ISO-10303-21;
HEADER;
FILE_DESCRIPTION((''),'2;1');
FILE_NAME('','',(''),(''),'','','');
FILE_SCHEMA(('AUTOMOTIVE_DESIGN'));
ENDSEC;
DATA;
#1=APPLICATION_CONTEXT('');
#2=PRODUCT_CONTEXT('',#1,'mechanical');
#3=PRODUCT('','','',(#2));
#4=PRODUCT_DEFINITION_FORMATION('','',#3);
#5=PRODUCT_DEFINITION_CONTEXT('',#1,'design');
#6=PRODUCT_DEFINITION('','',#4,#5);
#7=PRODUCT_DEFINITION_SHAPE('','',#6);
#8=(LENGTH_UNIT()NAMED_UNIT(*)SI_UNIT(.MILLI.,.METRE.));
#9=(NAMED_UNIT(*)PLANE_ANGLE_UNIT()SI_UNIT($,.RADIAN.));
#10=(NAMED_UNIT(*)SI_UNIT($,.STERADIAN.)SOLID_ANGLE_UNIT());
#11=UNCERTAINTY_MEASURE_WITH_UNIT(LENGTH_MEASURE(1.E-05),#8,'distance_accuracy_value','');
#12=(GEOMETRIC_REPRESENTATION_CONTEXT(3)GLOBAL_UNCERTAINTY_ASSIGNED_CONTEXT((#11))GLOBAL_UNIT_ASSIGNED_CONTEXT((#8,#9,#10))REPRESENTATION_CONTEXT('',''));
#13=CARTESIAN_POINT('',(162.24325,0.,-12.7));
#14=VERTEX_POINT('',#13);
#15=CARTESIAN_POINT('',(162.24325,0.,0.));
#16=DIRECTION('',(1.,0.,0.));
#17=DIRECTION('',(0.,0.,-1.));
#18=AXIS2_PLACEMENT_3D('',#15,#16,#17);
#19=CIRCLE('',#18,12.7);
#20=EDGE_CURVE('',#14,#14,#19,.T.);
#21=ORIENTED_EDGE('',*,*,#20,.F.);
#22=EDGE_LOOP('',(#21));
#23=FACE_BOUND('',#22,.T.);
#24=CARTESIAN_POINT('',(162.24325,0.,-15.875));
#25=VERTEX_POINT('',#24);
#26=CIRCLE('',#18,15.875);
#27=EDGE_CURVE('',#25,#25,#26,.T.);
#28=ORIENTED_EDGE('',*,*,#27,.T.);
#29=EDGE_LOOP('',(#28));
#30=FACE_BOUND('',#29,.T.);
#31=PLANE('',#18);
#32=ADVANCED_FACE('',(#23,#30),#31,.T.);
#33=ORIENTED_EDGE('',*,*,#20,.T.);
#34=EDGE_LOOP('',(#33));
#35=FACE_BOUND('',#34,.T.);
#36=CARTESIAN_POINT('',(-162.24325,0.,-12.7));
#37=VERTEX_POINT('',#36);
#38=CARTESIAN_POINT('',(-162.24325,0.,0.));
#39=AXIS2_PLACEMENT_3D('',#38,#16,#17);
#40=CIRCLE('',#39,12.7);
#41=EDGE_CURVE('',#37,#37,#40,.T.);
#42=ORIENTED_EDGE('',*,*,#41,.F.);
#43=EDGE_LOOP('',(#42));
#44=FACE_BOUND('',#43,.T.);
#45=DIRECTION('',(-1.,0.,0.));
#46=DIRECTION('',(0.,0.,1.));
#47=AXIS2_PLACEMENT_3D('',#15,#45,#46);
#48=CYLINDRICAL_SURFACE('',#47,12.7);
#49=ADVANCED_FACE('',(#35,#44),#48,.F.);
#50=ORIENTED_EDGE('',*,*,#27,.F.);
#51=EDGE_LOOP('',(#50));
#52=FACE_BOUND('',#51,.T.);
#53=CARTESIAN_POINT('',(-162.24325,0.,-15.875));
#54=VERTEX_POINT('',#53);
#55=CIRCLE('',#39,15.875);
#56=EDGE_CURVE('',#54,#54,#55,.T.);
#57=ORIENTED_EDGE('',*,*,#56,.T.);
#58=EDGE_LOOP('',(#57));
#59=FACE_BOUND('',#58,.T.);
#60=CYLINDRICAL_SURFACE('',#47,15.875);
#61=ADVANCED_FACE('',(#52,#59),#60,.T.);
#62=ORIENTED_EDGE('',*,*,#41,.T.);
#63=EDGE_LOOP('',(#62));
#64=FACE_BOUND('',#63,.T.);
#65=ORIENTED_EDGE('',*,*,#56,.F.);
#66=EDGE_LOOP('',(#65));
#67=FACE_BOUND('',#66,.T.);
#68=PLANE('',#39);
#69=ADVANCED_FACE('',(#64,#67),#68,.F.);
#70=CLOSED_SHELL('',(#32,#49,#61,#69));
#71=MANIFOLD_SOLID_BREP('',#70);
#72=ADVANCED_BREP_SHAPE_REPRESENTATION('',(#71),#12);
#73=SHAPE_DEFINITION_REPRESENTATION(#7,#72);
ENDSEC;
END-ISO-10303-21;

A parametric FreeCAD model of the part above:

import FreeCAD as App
import Part
import Sketcher

V = App.Vector
Q = App.Units.Quantity

doc = App.newDocument("Part")
params = doc.addObject("Spreadsheet::Sheet", "Params")
for row, (alias, value) in enumerate([
    ("sketch1_diameter", "1 in"),
    ("sketch1_diameter2", "1.25 in"),
    ("pad1_length", "324.4865 mm"),
], start=1):
    params.set(f"A{row}", alias)
    params.set(f"B{row}", "=" + value)
    params.setAlias(f"B{row}", alias)

body = doc.addObject("PartDesign::Body", "Body")

# Sketch on YZ plane
sketch1 = body.newObject("Sketcher::SketchObject", "Sketch")
sketch1.AttachmentSupport = (doc.getObject("YZ_Plane"), [""])
sketch1.MapMode = "FlatFace"
sketch1.addGeometry([
    Part.Circle(V(0, 0, 0), V(0, 0, 1), 16),
    Part.Circle(V(0, 0, 0), V(0, 0, 1), 13),
], False)
sketch1.addConstraint([
    Sketcher.Constraint("Coincident", 0, 3, -1, 1),
    Sketcher.Constraint("Coincident", 1, 3, -1, 1),
    Sketcher.Constraint("Diameter", 1, Q("1 in")),
    Sketcher.Constraint("Diameter", 0, Q("1.25 in")),
])
sketch1.setExpression("Constraints[2]", "Params.sketch1_diameter")
sketch1.setExpression("Constraints[3]", "Params.sketch1_diameter2")
pad1 = body.newObject("PartDesign::Pad", "Pad")
pad1.Profile = sketch1
pad1.setExpression("Length", "Params.pad1_length")
pad1.Midplane = True

doc.recompute()
